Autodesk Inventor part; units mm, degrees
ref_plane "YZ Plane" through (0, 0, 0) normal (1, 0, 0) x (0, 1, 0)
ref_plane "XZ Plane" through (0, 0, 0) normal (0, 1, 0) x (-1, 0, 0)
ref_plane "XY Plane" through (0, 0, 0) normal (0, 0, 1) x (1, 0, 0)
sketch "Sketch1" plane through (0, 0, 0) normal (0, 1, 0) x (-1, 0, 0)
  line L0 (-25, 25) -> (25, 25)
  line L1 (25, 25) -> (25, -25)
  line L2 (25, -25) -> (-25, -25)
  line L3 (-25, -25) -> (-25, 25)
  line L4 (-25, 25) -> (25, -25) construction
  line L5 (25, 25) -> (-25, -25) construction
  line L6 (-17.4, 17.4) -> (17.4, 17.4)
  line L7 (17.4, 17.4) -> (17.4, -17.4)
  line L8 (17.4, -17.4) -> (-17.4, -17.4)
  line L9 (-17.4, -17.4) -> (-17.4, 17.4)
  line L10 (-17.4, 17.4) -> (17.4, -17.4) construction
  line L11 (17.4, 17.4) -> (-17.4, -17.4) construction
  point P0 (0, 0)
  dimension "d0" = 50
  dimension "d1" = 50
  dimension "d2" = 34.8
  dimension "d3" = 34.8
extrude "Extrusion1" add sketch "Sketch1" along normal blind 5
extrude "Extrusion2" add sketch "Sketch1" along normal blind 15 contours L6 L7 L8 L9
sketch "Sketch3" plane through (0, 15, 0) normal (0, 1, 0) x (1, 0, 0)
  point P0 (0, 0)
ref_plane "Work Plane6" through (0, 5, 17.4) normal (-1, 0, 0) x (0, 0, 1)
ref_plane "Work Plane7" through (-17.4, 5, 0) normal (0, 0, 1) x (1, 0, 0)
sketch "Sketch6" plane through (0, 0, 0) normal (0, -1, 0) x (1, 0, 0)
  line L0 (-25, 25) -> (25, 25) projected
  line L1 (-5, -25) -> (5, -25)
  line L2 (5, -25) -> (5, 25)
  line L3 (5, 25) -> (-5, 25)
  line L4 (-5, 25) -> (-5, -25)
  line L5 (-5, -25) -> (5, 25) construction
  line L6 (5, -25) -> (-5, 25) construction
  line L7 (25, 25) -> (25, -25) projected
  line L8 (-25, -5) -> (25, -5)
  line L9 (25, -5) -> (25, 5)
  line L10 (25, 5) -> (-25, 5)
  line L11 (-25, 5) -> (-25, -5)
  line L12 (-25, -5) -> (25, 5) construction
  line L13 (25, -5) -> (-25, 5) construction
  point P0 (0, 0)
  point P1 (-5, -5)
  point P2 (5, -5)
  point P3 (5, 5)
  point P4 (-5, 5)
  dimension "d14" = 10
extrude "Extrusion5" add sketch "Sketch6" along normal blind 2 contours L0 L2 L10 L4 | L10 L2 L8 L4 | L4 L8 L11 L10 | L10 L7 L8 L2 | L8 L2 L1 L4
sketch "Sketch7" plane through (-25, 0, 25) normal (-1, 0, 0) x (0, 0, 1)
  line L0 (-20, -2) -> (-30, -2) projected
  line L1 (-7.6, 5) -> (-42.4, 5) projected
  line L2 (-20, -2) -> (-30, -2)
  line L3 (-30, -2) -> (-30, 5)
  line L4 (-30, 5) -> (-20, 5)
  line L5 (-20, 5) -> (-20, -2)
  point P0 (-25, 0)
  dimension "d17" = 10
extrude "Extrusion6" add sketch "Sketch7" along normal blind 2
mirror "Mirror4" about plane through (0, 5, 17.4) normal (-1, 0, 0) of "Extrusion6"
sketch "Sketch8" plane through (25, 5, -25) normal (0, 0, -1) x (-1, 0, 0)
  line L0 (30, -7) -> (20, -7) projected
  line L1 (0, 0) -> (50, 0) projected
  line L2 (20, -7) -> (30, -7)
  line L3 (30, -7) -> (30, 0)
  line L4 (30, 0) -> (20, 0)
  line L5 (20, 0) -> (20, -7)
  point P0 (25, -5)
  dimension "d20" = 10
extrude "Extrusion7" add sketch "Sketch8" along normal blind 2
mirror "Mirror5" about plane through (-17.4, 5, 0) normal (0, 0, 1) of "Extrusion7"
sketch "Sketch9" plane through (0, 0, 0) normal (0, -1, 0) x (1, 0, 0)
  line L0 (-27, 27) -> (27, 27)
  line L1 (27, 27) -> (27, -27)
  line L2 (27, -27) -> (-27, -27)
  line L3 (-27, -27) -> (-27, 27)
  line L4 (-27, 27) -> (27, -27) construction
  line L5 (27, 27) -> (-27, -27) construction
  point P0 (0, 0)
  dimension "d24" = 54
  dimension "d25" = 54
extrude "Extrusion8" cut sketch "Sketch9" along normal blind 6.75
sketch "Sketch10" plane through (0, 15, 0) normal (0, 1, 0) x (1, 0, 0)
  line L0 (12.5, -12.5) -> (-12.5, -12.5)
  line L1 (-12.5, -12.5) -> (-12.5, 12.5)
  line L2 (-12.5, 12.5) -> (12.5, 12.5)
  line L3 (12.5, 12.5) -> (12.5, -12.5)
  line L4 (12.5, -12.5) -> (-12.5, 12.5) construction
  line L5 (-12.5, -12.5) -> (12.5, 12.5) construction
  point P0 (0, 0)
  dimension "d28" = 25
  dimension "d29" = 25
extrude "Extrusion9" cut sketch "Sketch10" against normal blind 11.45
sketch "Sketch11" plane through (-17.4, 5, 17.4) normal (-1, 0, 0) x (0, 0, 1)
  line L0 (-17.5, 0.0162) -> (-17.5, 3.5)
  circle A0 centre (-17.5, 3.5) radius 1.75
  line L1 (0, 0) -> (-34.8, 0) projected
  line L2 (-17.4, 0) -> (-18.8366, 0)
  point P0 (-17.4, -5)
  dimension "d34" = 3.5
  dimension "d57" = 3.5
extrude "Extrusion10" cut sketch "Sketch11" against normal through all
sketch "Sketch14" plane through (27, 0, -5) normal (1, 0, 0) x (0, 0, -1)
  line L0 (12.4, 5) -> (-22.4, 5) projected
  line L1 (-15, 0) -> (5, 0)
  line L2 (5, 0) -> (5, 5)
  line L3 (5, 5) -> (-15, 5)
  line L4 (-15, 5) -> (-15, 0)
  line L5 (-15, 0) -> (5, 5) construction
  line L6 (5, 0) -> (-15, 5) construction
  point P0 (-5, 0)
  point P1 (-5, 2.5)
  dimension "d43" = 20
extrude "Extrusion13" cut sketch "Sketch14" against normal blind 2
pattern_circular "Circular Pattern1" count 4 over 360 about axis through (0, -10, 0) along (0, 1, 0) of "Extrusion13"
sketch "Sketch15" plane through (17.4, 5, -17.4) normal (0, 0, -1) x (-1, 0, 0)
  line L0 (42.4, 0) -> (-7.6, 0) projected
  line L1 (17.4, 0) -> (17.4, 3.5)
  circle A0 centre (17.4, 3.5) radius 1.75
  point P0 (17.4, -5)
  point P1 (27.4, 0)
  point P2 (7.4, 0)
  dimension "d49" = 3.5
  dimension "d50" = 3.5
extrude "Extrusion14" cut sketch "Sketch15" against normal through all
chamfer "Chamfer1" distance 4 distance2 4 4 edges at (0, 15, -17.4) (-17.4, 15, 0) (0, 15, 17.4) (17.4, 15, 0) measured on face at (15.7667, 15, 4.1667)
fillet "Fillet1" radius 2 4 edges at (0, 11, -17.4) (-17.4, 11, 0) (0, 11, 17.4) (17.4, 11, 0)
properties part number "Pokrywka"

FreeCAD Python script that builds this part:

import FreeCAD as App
import Part
import Sketcher

V = App.Vector
Q = App.Units.Quantity


def edges_at(feature, points):
    """Names of the edges that pass closest to the given points."""
    edges = feature.Shape.Edges
    near = lambda p: min(range(len(edges)), key=lambda i: edges[i].distToShape(Part.Vertex(*p))[0])
    return sorted({f"Edge{near(p) + 1}" for p in points})


def add_polygon(sketch, points):
    """Adds a closed chain of lines whose ends are joined by coincident constraints."""
    first, n = sketch.GeometryCount, len(points)
    for a, b in zip(points, points[1:] + points[:1]):
        sketch.addGeometry(Part.LineSegment(App.Vector(*a, 0), App.Vector(*b, 0)), False)
    for i in range(n):
        sketch.addConstraint(Sketcher.Constraint("Coincident", first + i, 2, first + (i + 1) % n, 1))

doc = App.newDocument("Part")
body = doc.addObject("PartDesign::Body", "Body")

sketch1 = body.newObject("Sketcher::SketchObject", "Sketch")
sketch1.AttachmentSupport = (doc.getObject("XZ_Plane"), [""])
sketch1.MapMode = "FlatFace"
add_polygon(sketch1, [(-25, 25), (25, 25), (25, -25), (-25, -25)])
add_polygon(sketch1, [(17, -17), (17, 17), (-17, 17), (-17, -17)])
sketch1.addConstraint(Sketcher.Constraint("Horizontal", 0))
sketch1.addConstraint(Sketcher.Constraint("Vertical", 1))
sketch1.addConstraint(Sketcher.Constraint("Horizontal", 2))
sketch1.addConstraint(Sketcher.Constraint("Vertical", 3))
sketch1.addConstraint(Sketcher.Constraint("Vertical", 4))
sketch1.addConstraint(Sketcher.Constraint("Horizontal", 5))
sketch1.addConstraint(Sketcher.Constraint("Vertical", 6))
sketch1.addConstraint(Sketcher.Constraint("Horizontal", 7))
sketch1.addConstraint(Sketcher.Constraint("Symmetric", 0, 2, 2, 2, -1, 1))
sketch1.addConstraint(Sketcher.Constraint("Symmetric", 4, 2, 6, 2, -1, 1))
sketch1.addConstraint(Sketcher.Constraint("Equal", 2, 1))
sketch1.addConstraint(Sketcher.Constraint("Equal", 7, 4))
sketch1.addConstraint(Sketcher.Constraint("DistanceX", 0, 1, 0, 2, Q("50 mm")))
sketch1.addConstraint(Sketcher.Constraint("DistanceX", 5, 2, 5, 1, Q("34.8 mm")))
pad1 = body.newObject("PartDesign::Pad", "Pad")
pad1.Profile = sketch1
pad1.Length = 5
pad1.Reversed = True

sketch2 = body.newObject("Sketcher::SketchObject", "Sketch001")
sketch2.AttachmentSupport = (doc.getObject("XZ_Plane"), [""])
sketch2.MapMode = "FlatFace"
add_polygon(sketch2, [(-17, 17), (17, 17), (17, -17), (-17, -17)])
sketch2.addConstraint(Sketcher.Constraint("Horizontal", 0))
sketch2.addConstraint(Sketcher.Constraint("Vertical", 1))
sketch2.addConstraint(Sketcher.Constraint("Horizontal", 2))
sketch2.addConstraint(Sketcher.Constraint("Vertical", 3))
sketch2.addConstraint(Sketcher.Constraint("Symmetric", 0, 2, 2, 2, -1, 1))
sketch2.addConstraint(Sketcher.Constraint("Equal", 2, 1))
sketch2.addConstraint(Sketcher.Constraint("DistanceX", 0, 1, 0, 2, Q("34.8 mm")))
pad2 = body.newObject("PartDesign::Pad", "Pad001")
pad2.Profile = sketch2
pad2.Length = 15
pad2.Reversed = True

sketch3 = body.newObject("Sketcher::SketchObject", "Sketch002")
sketch3.AttachmentSupport = (doc.getObject("XZ_Plane"), [""])
sketch3.MapMode = "FlatFace"
add_polygon(sketch3, [(5, 25), (-5, 25), (-5, 5), (-25, 5), (-25, -5), (-5, -5), (-5, -25), (5, -25), (5, -5), (25, -5), (25, 5), (5, 5)])
sketch3.addConstraint(Sketcher.Constraint("Horizontal", 0))
sketch3.addConstraint(Sketcher.Constraint("Vertical", 1))
sketch3.addConstraint(Sketcher.Constraint("Horizontal", 2))
sketch3.addConstraint(Sketcher.Constraint("Vertical", 3))
sketch3.addConstraint(Sketcher.Constraint("Horizontal", 4))
sketch3.addConstraint(Sketcher.Constraint("Vertical", 5))
sketch3.addConstraint(Sketcher.Constraint("Horizontal", 6))
sketch3.addConstraint(Sketcher.Constraint("Vertical", 7))
sketch3.addConstraint(Sketcher.Constraint("Horizontal", 8))
sketch3.addConstraint(Sketcher.Constraint("Vertical", 9))
sketch3.addConstraint(Sketcher.Constraint("Horizontal", 10))
sketch3.addConstraint(Sketcher.Constraint("Vertical", 11))
sketch3.addConstraint(Sketcher.Constraint("Symmetric", 0, 2, 6, 2, -1, 1))
sketch3.addConstraint(Sketcher.Constraint("Symmetric", 2, 2, 8, 2, -1, 1))
sketch3.addConstraint(Sketcher.Constraint("Symmetric", 4, 2, 10, 2, -1, 1))
sketch3.addConstraint(Sketcher.Constraint("Symmetric", 4, 2, 7, 2, -2))
sketch3.addConstraint(Sketcher.Constraint("Equal", 10, 1))
sketch3.addConstraint(Sketcher.Constraint("Equal", 6, 3))
sketch3.addConstraint(Sketcher.Constraint("DistanceX", 0, 2, 0, 1, Q("10 mm")))
sketch3.addConstraint(Sketcher.Constraint("DistanceX", 2, 2, 2, 1, Q("20 mm")))
pad3 = body.newObject("PartDesign::Pad", "Pad002")
pad3.Profile = sketch3
pad3.Length = 2

sketch4 = body.newObject("Sketcher::SketchObject", "Sketch003")
sketch4.AttachmentSupport = (doc.getObject("YZ_Plane"), [""])
sketch4.MapMode = "FlatFace"
sketch4.AttachmentOffset = App.Placement(V(0, 0, -25), App.Rotation())
add_polygon(sketch4, [(-2, -5), (-2, 5), (5, 5), (5, -5)])
sketch4.addConstraint(Sketcher.Constraint("Vertical", 0))
sketch4.addConstraint(Sketcher.Constraint("Horizontal", 1))
sketch4.addConstraint(Sketcher.Constraint("Vertical", 2))
sketch4.addConstraint(Sketcher.Constraint("Horizontal", 3))
sketch4.addConstraint(Sketcher.Constraint("DistanceY", 0, 1, 0, 2, Q("10 mm")))
sketch4.addConstraint(Sketcher.Constraint("DistanceX", 1, 1, 1, 2, Q("7 mm")))
sketch4.addConstraint(Sketcher.Constraint("DistanceX", 0, 2, -1, 1, Q("2 mm")))
sketch4.addConstraint(Sketcher.Constraint("DistanceY", -1, 1, 0, 2, Q("5 mm")))
pad4 = body.newObject("PartDesign::Pad", "Pad003")
pad4.Profile = sketch4
pad4.Length = 2
pad4.Reversed = True
doc.recompute()

mirrored = body.newObject("PartDesign::Mirrored", "Mirrored")
mirrored.Originals = [pad4]
mirrored.MirrorPlane = (doc.getObject("YZ_Plane"), [""])
body.Tip = mirrored

sketch5 = body.newObject("Sketcher::SketchObject", "Sketch004")
sketch5.AttachmentSupport = (doc.getObject("XY_Plane"), [""])
sketch5.MapMode = "FlatFace"
sketch5.AttachmentOffset = App.Placement(V(0, 0, -25), App.Rotation())
add_polygon(sketch5, [(5, -2), (-5, -2), (-5, 5), (5, 5)])
sketch5.addConstraint(Sketcher.Constraint("Horizontal", 0))
sketch5.addConstraint(Sketcher.Constraint("Vertical", 1))
sketch5.addConstraint(Sketcher.Constraint("Horizontal", 2))
sketch5.addConstraint(Sketcher.Constraint("Vertical", 3))
sketch5.addConstraint(Sketcher.Constraint("DistanceX", 0, 2, 0, 1, Q("10 mm")))
sketch5.addConstraint(Sketcher.Constraint("DistanceY", 1, 1, 1, 2, Q("7 mm")))
sketch5.addConstraint(Sketcher.Constraint("DistanceX", 0, 2, -1, 1, Q("5 mm")))
sketch5.addConstraint(Sketcher.Constraint("DistanceY", 0, 2, -1, 1, Q("2 mm")))
pad5 = body.newObject("PartDesign::Pad", "Pad004")
pad5.Profile = sketch5
pad5.Length = 2
pad5.Reversed = True
doc.recompute()

mirrored2 = body.newObject("PartDesign::Mirrored", "Mirrored001")
mirrored2.Originals = [pad5]
mirrored2.MirrorPlane = (doc.getObject("XY_Plane"), [""])
body.Tip = mirrored2

sketch6 = body.newObject("Sketcher::SketchObject", "Sketch005")
sketch6.AttachmentSupport = (doc.getObject("XZ_Plane"), [""])
sketch6.MapMode = "FlatFace"
add_polygon(sketch6, [(27, 27), (-27, 27), (-27, -27), (27, -27)])
sketch6.addConstraint(Sketcher.Constraint("Horizontal", 0))
sketch6.addConstraint(Sketcher.Constraint("Vertical", 1))
sketch6.addConstraint(Sketcher.Constraint("Horizontal", 2))
sketch6.addConstraint(Sketcher.Constraint("Vertical", 3))
sketch6.addConstraint(Sketcher.Constraint("Symmetric", 0, 2, 2, 2, -1, 1))
sketch6.addConstraint(Sketcher.Constraint("Equal", 2, 1))
sketch6.addConstraint(Sketcher.Constraint("DistanceX", 0, 2, 0, 1, Q("54 mm")))
pocket1 = body.newObject("PartDesign::Pocket", "Pocket")
pocket1.Profile = sketch6
pocket1.Length = 6.75
pocket1.Reversed = True

sketch7 = body.newObject("Sketcher::SketchObject", "Sketch006")
sketch7.AttachmentSupport = (doc.getObject("XZ_Plane"), [""])
sketch7.MapMode = "FlatFace"
sketch7.AttachmentOffset = App.Placement(V(0, 0, -15), App.Rotation())
add_polygon(sketch7, [(-12, 12), (12, 12), (12, -12), (-12, -12)])
sketch7.addConstraint(Sketcher.Constraint("Horizontal", 0))
sketch7.addConstraint(Sketcher.Constraint("Vertical", 1))
sketch7.addConstraint(Sketcher.Constraint("Horizontal", 2))
sketch7.addConstraint(Sketcher.Constraint("Vertical", 3))
sketch7.addConstraint(Sketcher.Constraint("Symmetric", 0, 2, 2, 2, -1, 1))
sketch7.addConstraint(Sketcher.Constraint("Equal", 2, 1))
sketch7.addConstraint(Sketcher.Constraint("DistanceX", 0, 1, 0, 2, Q("25 mm")))
pocket2 = body.newObject("PartDesign::Pocket", "Pocket001")
pocket2.Profile = sketch7
pocket2.Length = 11.45
pocket2.Reversed = True

sketch8 = body.newObject("Sketcher::SketchObject", "Sketch007")
sketch8.AttachmentSupport = (doc.getObject("YZ_Plane"), [""])
sketch8.MapMode = "FlatFace"
sketch8.AttachmentOffset = App.Placement(V(0, 0, -17.4), App.Rotation())
sketch8.addGeometry(Part.Circle(V(8.5, -0.1, 0), V(0, 0, 1), 1.8), False)
sketch8.addConstraint(Sketcher.Constraint("Diameter", 0, Q("3.5 mm")))
sketch8.addConstraint(Sketcher.Constraint("DistanceX", -1, 1, 0, 3, Q("8.5 mm")))
sketch8.addConstraint(Sketcher.Constraint("DistanceY", 0, 3, -1, 1, Q("0.1 mm")))
pocket3 = body.newObject("PartDesign::Pocket", "Pocket002")
pocket3.Profile = sketch8
pocket3.Type = "ThroughAll"
pocket3.Reversed = True

sketch9 = body.newObject("Sketcher::SketchObject", "Sketch008")
sketch9.AttachmentSupport = (doc.getObject("YZ_Plane"), [""])
sketch9.MapMode = "FlatFace"
sketch9.AttachmentOffset = App.Placement(V(0, 0, 27), App.Rotation())
add_polygon(sketch9, [(0, -10), (5, -10), (5, 10), (0, 10)])
sketch9.addConstraint(Sketcher.Constraint("Horizontal", 0))
sketch9.addConstraint(Sketcher.Constraint("Vertical", 1))
sketch9.addConstraint(Sketcher.Constraint("Horizontal", 2))
sketch9.addConstraint(Sketcher.Constraint("Vertical", 3))
sketch9.addConstraint(Sketcher.Constraint("Symmetric", 2, 2, 3, 2, -1, 1))
sketch9.addConstraint(Sketcher.Constraint("DistanceY", 1, 1, 1, 2, Q("20 mm")))
sketch9.addConstraint(Sketcher.Constraint("DistanceX", 0, 1, 0, 2, Q("5 mm")))
pocket4 = body.newObject("PartDesign::Pocket", "Pocket003")
pocket4.Profile = sketch9
pocket4.Length = 2
doc.recompute()

polarpattern = body.newObject("PartDesign::PolarPattern", "PolarPattern")
polarpattern.Originals = [pocket4]
polarpattern.Axis = (doc.getObject("Y_Axis"), [""])
polarpattern.Angle = 360
polarpattern.Occurrences = 4
body.Tip = polarpattern

sketch10 = body.newObject("Sketcher::SketchObject", "Sketch009")
sketch10.AttachmentSupport = (doc.getObject("XY_Plane"), [""])
sketch10.MapMode = "FlatFace"
sketch10.AttachmentOffset = App.Placement(V(0, 0, -17.4), App.Rotation())
sketch10.addGeometry(Part.Circle(V(0, 8.5, 0), V(0, 0, 1), 1.8), False)
sketch10.addConstraint(Sketcher.Constraint("PointOnObject", 0, 3, -2))
sketch10.addConstraint(Sketcher.Constraint("Diameter", 0, Q("3.5 mm")))
sketch10.addConstraint(Sketcher.Constraint("DistanceY", -1, 1, 0, 3, Q("8.5 mm")))
pocket5 = body.newObject("PartDesign::Pocket", "Pocket004")
pocket5.Profile = sketch10
pocket5.Type = "ThroughAll"
pocket5.Reversed = True
doc.recompute()

chamfer = body.newObject("PartDesign::Chamfer", "Chamfer")
chamfer.Base = (pocket5, edges_at(pocket5, [
    (0, 15, -17.4),
    (-17.4, 15, 0),
    (0, 15, 17.4),
    (17.4, 15, 0),
]))
chamfer.ChamferType = "Two distances"
chamfer.Size = 4
chamfer.Size2 = 4
doc.recompute()

fillet = body.newObject("PartDesign::Fillet", "Fillet")
fillet.Base = (chamfer, edges_at(chamfer, [
    (0, 11, -17.4),
    (-17.4, 11, 0),
    (0, 11, 17.4),
    (17.4, 11, 0),
]))
fillet.Radius = 2

doc.recompute()
